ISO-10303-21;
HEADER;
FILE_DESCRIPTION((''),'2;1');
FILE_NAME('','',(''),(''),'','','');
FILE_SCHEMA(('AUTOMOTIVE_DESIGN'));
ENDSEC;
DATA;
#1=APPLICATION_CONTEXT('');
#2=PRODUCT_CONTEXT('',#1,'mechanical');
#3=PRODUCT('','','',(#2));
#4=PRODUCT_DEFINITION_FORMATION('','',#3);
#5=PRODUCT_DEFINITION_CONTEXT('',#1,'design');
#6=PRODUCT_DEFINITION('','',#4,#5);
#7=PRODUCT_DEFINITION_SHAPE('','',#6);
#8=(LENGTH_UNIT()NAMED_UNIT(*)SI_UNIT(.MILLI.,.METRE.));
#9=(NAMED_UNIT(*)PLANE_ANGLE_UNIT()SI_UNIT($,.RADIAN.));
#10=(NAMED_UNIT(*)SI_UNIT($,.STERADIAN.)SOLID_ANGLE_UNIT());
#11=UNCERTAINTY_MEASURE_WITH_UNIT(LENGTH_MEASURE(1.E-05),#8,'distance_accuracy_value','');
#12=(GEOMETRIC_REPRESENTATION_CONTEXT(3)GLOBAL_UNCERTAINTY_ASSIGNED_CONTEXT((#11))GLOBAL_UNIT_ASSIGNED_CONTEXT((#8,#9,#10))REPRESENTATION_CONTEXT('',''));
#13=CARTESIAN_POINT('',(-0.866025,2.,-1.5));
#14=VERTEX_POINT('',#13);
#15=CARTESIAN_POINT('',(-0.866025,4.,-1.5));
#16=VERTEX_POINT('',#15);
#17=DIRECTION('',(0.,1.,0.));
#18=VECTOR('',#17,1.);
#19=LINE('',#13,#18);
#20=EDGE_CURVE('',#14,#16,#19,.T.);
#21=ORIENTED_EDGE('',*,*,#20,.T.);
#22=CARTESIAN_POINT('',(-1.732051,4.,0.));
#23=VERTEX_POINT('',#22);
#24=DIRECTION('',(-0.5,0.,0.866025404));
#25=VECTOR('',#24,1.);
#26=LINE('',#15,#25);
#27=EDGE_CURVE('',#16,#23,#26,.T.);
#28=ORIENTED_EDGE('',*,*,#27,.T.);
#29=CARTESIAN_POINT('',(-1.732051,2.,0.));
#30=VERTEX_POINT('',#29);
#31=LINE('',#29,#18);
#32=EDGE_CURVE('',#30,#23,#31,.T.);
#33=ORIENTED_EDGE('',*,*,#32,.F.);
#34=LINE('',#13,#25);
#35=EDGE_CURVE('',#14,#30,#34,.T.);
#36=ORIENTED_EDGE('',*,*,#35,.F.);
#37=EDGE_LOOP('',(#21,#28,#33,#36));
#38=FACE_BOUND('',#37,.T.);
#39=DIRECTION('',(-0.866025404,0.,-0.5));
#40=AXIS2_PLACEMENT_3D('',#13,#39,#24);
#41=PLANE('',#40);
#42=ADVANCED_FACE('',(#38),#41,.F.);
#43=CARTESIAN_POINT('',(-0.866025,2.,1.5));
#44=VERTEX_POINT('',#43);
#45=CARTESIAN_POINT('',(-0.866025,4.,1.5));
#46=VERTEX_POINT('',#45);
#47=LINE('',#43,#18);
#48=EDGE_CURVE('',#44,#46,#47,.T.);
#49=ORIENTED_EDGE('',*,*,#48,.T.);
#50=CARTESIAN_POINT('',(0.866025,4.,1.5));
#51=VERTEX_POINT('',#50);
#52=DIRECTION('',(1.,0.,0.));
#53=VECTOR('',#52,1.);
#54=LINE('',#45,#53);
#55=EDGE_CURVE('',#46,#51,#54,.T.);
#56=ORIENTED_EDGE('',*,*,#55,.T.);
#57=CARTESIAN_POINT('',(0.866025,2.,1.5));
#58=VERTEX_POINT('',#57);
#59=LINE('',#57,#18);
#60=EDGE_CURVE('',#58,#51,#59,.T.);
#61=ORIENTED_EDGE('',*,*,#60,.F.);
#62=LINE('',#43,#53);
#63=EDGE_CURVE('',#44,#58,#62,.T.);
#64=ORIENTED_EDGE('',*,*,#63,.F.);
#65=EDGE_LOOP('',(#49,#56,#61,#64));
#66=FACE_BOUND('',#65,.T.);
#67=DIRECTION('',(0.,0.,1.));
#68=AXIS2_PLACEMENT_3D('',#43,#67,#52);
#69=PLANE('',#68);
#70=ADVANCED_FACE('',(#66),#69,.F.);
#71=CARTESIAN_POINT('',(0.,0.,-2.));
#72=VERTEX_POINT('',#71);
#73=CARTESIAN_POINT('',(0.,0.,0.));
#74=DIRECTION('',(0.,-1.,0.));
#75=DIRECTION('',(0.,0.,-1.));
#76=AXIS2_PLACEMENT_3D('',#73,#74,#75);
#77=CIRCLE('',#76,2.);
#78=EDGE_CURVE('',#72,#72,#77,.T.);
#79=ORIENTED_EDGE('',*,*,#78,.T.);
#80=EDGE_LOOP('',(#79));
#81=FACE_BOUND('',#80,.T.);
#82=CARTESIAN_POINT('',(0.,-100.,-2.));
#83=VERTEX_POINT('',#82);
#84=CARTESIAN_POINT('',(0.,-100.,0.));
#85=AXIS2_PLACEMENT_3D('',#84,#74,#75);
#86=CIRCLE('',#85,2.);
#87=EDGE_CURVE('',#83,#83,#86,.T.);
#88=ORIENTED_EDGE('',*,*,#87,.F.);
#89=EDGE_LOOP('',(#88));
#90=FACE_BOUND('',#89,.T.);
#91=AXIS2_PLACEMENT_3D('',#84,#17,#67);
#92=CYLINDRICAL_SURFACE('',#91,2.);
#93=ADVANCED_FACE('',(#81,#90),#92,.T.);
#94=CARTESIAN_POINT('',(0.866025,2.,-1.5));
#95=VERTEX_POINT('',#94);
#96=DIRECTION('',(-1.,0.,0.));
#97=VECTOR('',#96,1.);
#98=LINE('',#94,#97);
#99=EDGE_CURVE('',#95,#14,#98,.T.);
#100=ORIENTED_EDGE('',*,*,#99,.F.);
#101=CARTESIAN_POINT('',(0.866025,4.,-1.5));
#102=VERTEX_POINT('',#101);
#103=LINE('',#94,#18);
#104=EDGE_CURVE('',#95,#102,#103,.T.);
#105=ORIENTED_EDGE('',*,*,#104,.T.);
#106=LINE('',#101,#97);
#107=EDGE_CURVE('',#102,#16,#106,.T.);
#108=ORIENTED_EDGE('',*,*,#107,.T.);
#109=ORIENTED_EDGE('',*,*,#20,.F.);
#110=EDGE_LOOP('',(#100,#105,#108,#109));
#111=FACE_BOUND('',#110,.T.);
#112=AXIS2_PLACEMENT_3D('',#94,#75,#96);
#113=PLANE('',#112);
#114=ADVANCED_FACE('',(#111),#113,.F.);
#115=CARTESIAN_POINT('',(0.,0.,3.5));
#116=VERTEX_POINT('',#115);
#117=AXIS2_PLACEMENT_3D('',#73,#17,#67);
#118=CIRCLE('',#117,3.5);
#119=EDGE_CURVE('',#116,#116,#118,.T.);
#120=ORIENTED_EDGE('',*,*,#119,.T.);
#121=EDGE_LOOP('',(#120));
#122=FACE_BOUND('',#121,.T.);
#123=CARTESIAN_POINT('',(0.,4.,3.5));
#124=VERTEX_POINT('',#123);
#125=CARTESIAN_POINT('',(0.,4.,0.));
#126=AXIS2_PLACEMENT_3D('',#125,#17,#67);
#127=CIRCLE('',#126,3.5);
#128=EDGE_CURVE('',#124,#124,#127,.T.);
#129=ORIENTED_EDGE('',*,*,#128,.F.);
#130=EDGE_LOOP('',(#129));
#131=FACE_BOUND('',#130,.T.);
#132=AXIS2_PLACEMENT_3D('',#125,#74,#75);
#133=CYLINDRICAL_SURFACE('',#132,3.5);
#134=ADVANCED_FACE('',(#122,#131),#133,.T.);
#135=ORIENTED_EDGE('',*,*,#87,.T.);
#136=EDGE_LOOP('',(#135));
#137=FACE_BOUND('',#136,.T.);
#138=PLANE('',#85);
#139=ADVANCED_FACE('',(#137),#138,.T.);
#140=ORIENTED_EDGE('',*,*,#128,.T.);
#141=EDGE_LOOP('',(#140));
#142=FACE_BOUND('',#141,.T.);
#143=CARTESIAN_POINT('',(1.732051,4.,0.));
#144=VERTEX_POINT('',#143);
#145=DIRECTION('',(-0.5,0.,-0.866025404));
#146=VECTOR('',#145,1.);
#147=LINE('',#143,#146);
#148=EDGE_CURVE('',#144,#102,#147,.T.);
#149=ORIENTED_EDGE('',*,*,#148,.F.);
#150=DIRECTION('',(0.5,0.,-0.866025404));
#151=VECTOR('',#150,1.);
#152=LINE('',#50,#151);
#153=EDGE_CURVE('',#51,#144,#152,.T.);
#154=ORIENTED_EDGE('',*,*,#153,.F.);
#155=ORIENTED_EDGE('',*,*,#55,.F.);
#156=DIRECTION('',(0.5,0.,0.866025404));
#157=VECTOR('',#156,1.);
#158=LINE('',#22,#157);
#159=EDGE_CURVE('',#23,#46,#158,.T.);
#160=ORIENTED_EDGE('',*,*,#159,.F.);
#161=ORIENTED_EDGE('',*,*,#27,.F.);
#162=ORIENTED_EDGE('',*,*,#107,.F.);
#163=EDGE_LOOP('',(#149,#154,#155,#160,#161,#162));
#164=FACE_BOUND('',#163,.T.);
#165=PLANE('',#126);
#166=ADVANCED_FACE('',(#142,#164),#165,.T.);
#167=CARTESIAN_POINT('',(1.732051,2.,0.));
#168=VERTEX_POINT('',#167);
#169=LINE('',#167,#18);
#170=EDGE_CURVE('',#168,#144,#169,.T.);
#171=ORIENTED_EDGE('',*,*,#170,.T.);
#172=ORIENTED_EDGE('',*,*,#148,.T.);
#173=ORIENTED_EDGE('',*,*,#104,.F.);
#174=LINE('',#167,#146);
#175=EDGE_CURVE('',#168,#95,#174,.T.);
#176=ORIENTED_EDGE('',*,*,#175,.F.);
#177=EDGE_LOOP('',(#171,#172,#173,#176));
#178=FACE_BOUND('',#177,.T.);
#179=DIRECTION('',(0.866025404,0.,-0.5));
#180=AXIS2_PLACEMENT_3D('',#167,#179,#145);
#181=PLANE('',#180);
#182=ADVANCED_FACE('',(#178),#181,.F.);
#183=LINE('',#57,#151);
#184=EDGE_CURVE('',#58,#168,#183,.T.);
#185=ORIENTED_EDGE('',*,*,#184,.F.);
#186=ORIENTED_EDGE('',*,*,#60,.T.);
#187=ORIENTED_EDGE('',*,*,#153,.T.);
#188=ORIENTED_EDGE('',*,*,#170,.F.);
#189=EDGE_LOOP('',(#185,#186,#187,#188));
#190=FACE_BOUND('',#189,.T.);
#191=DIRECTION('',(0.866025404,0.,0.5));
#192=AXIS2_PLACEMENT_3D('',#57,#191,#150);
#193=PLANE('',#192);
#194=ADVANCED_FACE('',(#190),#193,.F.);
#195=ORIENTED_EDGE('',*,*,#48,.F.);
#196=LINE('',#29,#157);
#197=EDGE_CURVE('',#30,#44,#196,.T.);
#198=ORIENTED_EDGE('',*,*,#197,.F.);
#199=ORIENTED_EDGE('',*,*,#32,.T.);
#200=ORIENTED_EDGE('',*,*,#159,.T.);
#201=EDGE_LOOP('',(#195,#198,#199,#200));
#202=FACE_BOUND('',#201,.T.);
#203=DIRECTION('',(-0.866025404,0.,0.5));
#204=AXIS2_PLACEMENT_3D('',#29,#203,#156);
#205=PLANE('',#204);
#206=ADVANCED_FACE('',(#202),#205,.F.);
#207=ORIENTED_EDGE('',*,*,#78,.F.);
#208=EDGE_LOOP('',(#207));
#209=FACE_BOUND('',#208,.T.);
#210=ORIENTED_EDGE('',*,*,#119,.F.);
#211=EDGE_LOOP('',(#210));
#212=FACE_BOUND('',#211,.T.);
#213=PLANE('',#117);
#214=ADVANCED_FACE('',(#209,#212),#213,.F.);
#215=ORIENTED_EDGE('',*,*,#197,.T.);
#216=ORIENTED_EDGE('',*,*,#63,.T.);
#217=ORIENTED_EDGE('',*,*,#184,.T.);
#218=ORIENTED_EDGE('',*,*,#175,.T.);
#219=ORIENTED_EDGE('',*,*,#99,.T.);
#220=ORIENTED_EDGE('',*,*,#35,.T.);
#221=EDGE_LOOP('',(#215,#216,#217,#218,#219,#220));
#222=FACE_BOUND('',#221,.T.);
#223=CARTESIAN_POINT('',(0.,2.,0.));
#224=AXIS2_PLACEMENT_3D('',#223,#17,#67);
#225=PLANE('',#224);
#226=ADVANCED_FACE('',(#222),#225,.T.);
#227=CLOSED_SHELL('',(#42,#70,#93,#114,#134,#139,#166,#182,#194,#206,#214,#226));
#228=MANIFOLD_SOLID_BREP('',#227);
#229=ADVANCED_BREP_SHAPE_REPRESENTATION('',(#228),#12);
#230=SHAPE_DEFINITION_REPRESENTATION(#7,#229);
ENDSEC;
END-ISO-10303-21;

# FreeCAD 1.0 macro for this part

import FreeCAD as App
import Part
import Sketcher

V = App.Vector
Q = App.Units.Quantity


def add_polygon(sketch, points):
    """Adds a closed chain of lines whose ends are joined by coincident constraints."""
    first, n = sketch.GeometryCount, len(points)
    for a, b in zip(points, points[1:] + points[:1]):
        sketch.addGeometry(Part.LineSegment(App.Vector(*a, 0), App.Vector(*b, 0)), False)
    for i in range(n):
        sketch.addConstraint(Sketcher.Constraint("Coincident", first + i, 2, first + (i + 1) % n, 1))

doc = App.newDocument("Part")
body = doc.addObject("PartDesign::Body", "Body")

# Sketch on XZ plane
sketch1 = body.newObject("Sketcher::SketchObject", "Sketch")
sketch1.AttachmentSupport = (doc.getObject("XZ_Plane"), [""])
sketch1.MapMode = "FlatFace"
sketch1.addGeometry(Part.Circle(V(0, 0, 0), V(0, 0, 1), 3.5), False)
sketch1.addConstraint([
    Sketcher.Constraint("Coincident", 0, 3, -1, 1),
    Sketcher.Constraint("Diameter", 0, 7.0),
])
pad1 = body.newObject("PartDesign::Pad", "Pad")
pad1.Profile = sketch1
pad1.Length = 4
pad1.Reversed = True

# Sketch on XZ plane
sketch2 = body.newObject("Sketcher::SketchObject", "Sketch001")
sketch2.AttachmentSupport = (doc.getObject("XZ_Plane"), [""])
sketch2.MapMode = "FlatFace"
sketch2.AttachmentOffset = App.Placement(V(0, 0, -4), App.Rotation())
add_polygon(sketch2, [(1.7, 0), (0.9, -1.5), (-0.9, -1.5), (-1.7, 0), (-0.9, 1.5), (0.9, 1.5)])  # lines 0-5
sketch2.addConstraint([
    Sketcher.Constraint("Horizontal", 1),
    Sketcher.Constraint("Horizontal", 4),
    Sketcher.Constraint("Symmetric", 0, 2, 3, 2, -1, 1),
    Sketcher.Constraint("Symmetric", 2, 2, 5, 2, -1, 1),
    Sketcher.Constraint("PointOnObject", 2, 2, -1),
    Sketcher.Constraint("Parallel", 2, 5),
    Sketcher.Constraint("Vertical", 1, 2, 3, 2),
    Sketcher.Constraint("Angle", 0, Q("-120 deg")),
    Sketcher.Constraint("DistanceY", 1, 2, 3, 2, 3.0),
    Sketcher.Constraint("DistanceX", 1, 2, 1, 1, 1.732051),
])
pocket1 = body.newObject("PartDesign::Pocket", "Pocket")
pocket1.Profile = sketch2
pocket1.Length = 2
pocket1.Reversed = True

# Sketch on XZ plane
sketch3 = body.newObject("Sketcher::SketchObject", "Sketch002")
sketch3.AttachmentSupport = (doc.getObject("XZ_Plane"), [""])
sketch3.MapMode = "FlatFace"
sketch3.addGeometry(Part.Circle(V(0, 0, 0), V(0, 0, 1), 2), False)
sketch3.addConstraint([
    Sketcher.Constraint("Coincident", 0, 3, -1, 1),
    Sketcher.Constraint("Diameter", 0, 4.0),
])
pad2 = body.newObject("PartDesign::Pad", "Pad001")
pad2.Profile = sketch3
pad2.Length = 100

doc.recompute()
